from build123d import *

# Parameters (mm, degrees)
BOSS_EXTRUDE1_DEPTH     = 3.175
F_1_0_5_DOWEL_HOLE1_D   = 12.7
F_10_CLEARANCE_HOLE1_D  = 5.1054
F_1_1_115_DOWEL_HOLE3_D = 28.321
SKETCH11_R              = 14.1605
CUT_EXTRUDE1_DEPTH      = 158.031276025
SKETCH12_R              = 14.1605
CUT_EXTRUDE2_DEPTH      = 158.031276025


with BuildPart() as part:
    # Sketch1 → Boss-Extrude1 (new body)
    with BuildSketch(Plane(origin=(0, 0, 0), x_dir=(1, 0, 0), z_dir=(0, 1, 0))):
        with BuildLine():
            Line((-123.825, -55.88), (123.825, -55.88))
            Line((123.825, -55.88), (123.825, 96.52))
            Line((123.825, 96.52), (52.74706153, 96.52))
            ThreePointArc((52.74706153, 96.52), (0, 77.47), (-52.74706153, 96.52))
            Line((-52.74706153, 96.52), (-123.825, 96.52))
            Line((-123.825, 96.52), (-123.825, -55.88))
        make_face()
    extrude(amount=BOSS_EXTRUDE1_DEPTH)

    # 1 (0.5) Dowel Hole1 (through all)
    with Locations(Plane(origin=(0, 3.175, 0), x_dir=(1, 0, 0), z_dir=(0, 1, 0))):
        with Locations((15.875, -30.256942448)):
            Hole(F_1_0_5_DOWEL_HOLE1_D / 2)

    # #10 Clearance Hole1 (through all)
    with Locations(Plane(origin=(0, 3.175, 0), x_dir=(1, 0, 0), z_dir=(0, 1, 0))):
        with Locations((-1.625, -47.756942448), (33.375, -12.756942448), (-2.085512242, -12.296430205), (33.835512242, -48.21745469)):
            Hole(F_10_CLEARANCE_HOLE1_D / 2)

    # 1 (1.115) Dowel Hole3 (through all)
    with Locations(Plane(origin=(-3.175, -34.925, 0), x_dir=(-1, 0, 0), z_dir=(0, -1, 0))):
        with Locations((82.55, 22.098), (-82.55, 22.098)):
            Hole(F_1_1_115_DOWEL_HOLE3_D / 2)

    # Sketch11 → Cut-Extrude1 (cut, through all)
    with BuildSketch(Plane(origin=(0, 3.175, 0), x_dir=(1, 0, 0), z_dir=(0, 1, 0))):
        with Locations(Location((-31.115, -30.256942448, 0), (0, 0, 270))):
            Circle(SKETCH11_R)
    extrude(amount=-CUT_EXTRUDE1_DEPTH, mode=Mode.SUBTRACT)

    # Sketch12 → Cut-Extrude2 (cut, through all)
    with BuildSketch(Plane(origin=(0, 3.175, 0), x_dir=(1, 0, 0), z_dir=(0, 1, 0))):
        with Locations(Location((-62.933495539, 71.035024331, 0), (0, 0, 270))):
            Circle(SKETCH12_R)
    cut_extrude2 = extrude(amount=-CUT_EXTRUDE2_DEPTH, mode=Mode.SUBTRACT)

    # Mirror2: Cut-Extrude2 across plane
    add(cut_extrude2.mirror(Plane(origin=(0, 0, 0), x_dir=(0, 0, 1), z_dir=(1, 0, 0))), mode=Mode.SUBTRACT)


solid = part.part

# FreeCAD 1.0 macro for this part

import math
import FreeCAD as App
import Part
import Sketcher
from FreeCAD import Vector
Q = App.Units.Quantity

doc = App.newDocument("Part")
params = doc.addObject("Spreadsheet::Sheet", "Params")
for row, (alias, value) in enumerate([
    ("sketch1_height", "6 in"),
    ("sketch1_radius", "3.25 in"),
    ("sketch1_width", "9.75 in"),
    ("pad1_length", "0.125 in"),
    ("sketch2_diameter", "0.5 in"),
    ("hole_diameter", "0.5 in"),
    ("sketch3_diameter", "0.201 in"),
    ("hole2_diameter", "0.201 in"),
    ("sketch4_diameter", "1.115 in"),
    ("hole3_diameter", "1.115 in"),
    ("sketch5_diameter", "1.115 in"),
    ("sketch6_diameter", "1.115 in"),
], start=1):
    params.set(f"A{row}", alias)
    params.set(f"B{row}", "=" + value)
    params.setAlias(f"B{row}", alias)

body = doc.addObject("PartDesign::Body", "Body")

# Sketch on XZ plane
sketch1 = body.newObject("Sketcher::SketchObject", "Sketch")
sketch1.AttachmentSupport = (doc.getObject("XZ_Plane"), [""])
sketch1.MapMode = "FlatFace"
sketch1.addGeometry(Part.LineSegment(Vector(-123.825, 55.88, 0), Vector(123.825, 55.88, 0)), False)
sketch1.addGeometry(Part.LineSegment(Vector(123.825, 55.88, 0), Vector(123.825, -96.52, 0)), False)
sketch1.addGeometry(Part.LineSegment(Vector(123.825, -96.52, 0), Vector(52.747062, -96.52, 0)), False)
sketch1.addGeometry(Part.ArcOfCircle(Part.Circle(Vector(0, -160.02, 0), Vector(0, 0, 1), 82.55), math.radians(50.284863), math.radians(129.715137)), False)
sketch1.addGeometry(Part.LineSegment(Vector(-52.747062, -96.52, 0), Vector(-123.825, -96.52, 0)), False)
sketch1.addGeometry(Part.LineSegment(Vector(-123.825, -96.52, 0), Vector(-123.825, 55.88, 0)), False)
sketch1.addConstraint(Sketcher.Constraint("Coincident", 0, 2, 1, 1))
sketch1.addConstraint(Sketcher.Constraint("Coincident", 1, 2, 2, 1))
sketch1.addConstraint(Sketcher.Constraint("Coincident", 2, 2, 3, 1))
sketch1.addConstraint(Sketcher.Constraint("Coincident", 3, 2, 4, 1))
sketch1.addConstraint(Sketcher.Constraint("Coincident", 4, 2, 5, 1))
sketch1.addConstraint(Sketcher.Constraint("Coincident", 5, 2, 0, 1))
sketch1.addConstraint(Sketcher.Constraint("Horizontal", 0))
sketch1.addConstraint(Sketcher.Constraint("Vertical", 1))
sketch1.addConstraint(Sketcher.Constraint("Horizontal", 2))
sketch1.addConstraint(Sketcher.Constraint("Horizontal", 4))
sketch1.addConstraint(Sketcher.Constraint("Vertical", 5))
sketch1.addConstraint(Sketcher.Constraint("Symmetric", 2, 2, 3, 2, -2))
sketch1.addConstraint(Sketcher.Constraint("Equal", 2, 4))
sketch1.addConstraint(Sketcher.Constraint("DistanceY", 1, 2, 1, 1, Q("6 in")))
sketch1.addConstraint(Sketcher.Constraint("Radius", 3, Q("3.25 in")))
sketch1.addConstraint(Sketcher.Constraint("DistanceX", 0, 1, 0, 2, Q("9.75 in")))
sketch1.addConstraint(Sketcher.Constraint("DistanceY", 3, 3, -1, 1, Q("6.3 in")))
sketch1.addConstraint(Sketcher.Constraint("DistanceY", -1, 1, 0, 2, Q("2.2 in")))
sketch1.setExpression("Constraints[13]", "Params.sketch1_height")
sketch1.setExpression("Constraints[14]", "Params.sketch1_radius")
sketch1.setExpression("Constraints[15]", "Params.sketch1_width")
pad1 = body.newObject("PartDesign::Pad", "Pad")
pad1.Profile = sketch1
pad1.setExpression("Length", "Params.pad1_length")
pad1.Reversed = True

# Sketch on XZ plane
sketch2 = body.newObject("Sketcher::SketchObject", "Sketch001")
sketch2.AttachmentSupport = (doc.getObject("XZ_Plane"), [""])
sketch2.MapMode = "FlatFace"
sketch2.AttachmentOffset = App.Placement(Vector(0, 0, -0.125 * 25.4), App.Rotation())
sketch2.addGeometry(Part.Circle(Vector(15.875, 30.256942, 0), Vector(0, 0, 1), 6.35), False)
sketch2.addConstraint(Sketcher.Constraint("Diameter", 0, Q("0.5 in")))
sketch2.addConstraint(Sketcher.Constraint("DistanceX", -1, 1, 0, 3, Q("0.625 in")))
sketch2.addConstraint(Sketcher.Constraint("DistanceY", -1, 1, 0, 3, 30.256942))
sketch2.setExpression("Constraints[0]", "Params.sketch2_diameter")
doc.recompute()
hole = body.newObject("PartDesign::Hole", "Hole")
hole.Profile = sketch2
hole.ThreadType = "None"
hole.setExpression("Diameter", "Params.hole_diameter")
hole.DepthType = "ThroughAll"
hole.Reversed = True

# Sketch on XZ plane
sketch3 = body.newObject("Sketcher::SketchObject", "Sketch002")
sketch3.AttachmentSupport = (doc.getObject("XZ_Plane"), [""])
sketch3.MapMode = "FlatFace"
sketch3.AttachmentOffset = App.Placement(Vector(0, 0, -0.125 * 25.4), App.Rotation())
sketch3.addGeometry(Part.Circle(Vector(-1.625, 47.756942, 0), Vector(0, 0, 1), 2.5527), False)
sketch3.addGeometry(Part.Circle(Vector(33.375, 12.756942, 0), Vector(0, 0, 1), 2.5527), False)
sketch3.addGeometry(Part.Circle(Vector(-2.085512, 12.29643, 0), Vector(0, 0, 1), 2.5527), False)
sketch3.addGeometry(Part.Circle(Vector(33.835512, 48.217455, 0), Vector(0, 0, 1), 2.5527), False)
sketch3.addConstraint(Sketcher.Constraint("Equal", 0, 1))
sketch3.addConstraint(Sketcher.Constraint("Equal", 1, 2))
sketch3.addConstraint(Sketcher.Constraint("Equal", 2, 3))
sketch3.addConstraint(Sketcher.Constraint("Diameter", 0, Q("0.201 in")))
sketch3.addConstraint(Sketcher.Constraint("DistanceX", 0, 3, -1, 1, 1.625))
sketch3.addConstraint(Sketcher.Constraint("DistanceX", -1, 1, 1, 3, 33.375))
sketch3.addConstraint(Sketcher.Constraint("DistanceY", 1, 3, 0, 3, 35.0))
sketch3.addConstraint(Sketcher.Constraint("DistanceY", -1, 1, 2, 3, 12.29643))
sketch3.addConstraint(Sketcher.Constraint("DistanceY", -1, 1, 0, 3, 47.756942))
sketch3.addConstraint(Sketcher.Constraint("DistanceX", 2, 3, -1, 1, 2.085512))
sketch3.addConstraint(Sketcher.Constraint("DistanceX", -1, 1, 3, 3, 33.835512))
sketch3.addConstraint(Sketcher.Constraint("DistanceY", -1, 1, 3, 3, 48.217455))
sketch3.setExpression("Constraints[3]", "Params.sketch3_diameter")
doc.recompute()
hole2 = body.newObject("PartDesign::Hole", "Hole001")
hole2.Profile = sketch3
hole2.ThreadType = "None"
hole2.setExpression("Diameter", "Params.hole2_diameter")
hole2.DepthType = "ThroughAll"
hole2.Reversed = True

# Sketch on XZ plane
sketch4 = body.newObject("Sketcher::SketchObject", "Sketch003")
sketch4.AttachmentSupport = (doc.getObject("XZ_Plane"), [""])
sketch4.MapMode = "FlatFace"
sketch4.AttachmentOffset = App.Placement(Vector(0, 0, 1.375 * 25.4), App.Rotation())
sketch4.addGeometry(Part.Circle(Vector(-85.725, -22.098, 0), Vector(0, 0, 1), 14.1605), False)
sketch4.addGeometry(Part.Circle(Vector(79.375, -22.098, 0), Vector(0, 0, 1), 14.1605), False)
sketch4.addConstraint(Sketcher.Constraint("Equal", 0, 1))
sketch4.addConstraint(Sketcher.Constraint("Horizontal", 0, 3, 1, 3))
sketch4.addConstraint(Sketcher.Constraint("Diameter", 0, Q("1.115 in")))
sketch4.addConstraint(Sketcher.Constraint("DistanceX", 0, 3, 1, 3, Q("6.5 in")))
sketch4.addConstraint(Sketcher.Constraint("DistanceY", 0, 3, -1, 1, Q("0.87 in")))
sketch4.addConstraint(Sketcher.Constraint("DistanceX", 0, 3, -1, 1, Q("3.375 in")))
sketch4.setExpression("Constraints[2]", "Params.sketch4_diameter")
doc.recompute()
hole3 = body.newObject("PartDesign::Hole", "Hole002")
hole3.Profile = sketch4
hole3.ThreadType = "None"
hole3.setExpression("Diameter", "Params.hole3_diameter")
hole3.DepthType = "ThroughAll"

# Sketch on XZ plane
sketch5 = body.newObject("Sketcher::SketchObject", "Sketch004")
sketch5.AttachmentSupport = (doc.getObject("XZ_Plane"), [""])
sketch5.MapMode = "FlatFace"
sketch5.AttachmentOffset = App.Placement(Vector(0, 0, -0.125 * 25.4), App.Rotation())
sketch5.addGeometry(Part.Circle(Vector(-31.115, 30.256942, 0), Vector(0, 0, 1), 14.1605), False)
sketch5.addConstraint(Sketcher.Constraint("Diameter", 0, Q("1.115 in")))
sketch5.addConstraint(Sketcher.Constraint("DistanceX", 0, 3, -1, 1, Q("1.225 in")))
sketch5.addConstraint(Sketcher.Constraint("DistanceY", -1, 1, 0, 3, 30.256942))
sketch5.setExpression("Constraints[0]", "Params.sketch5_diameter")
pocket1 = body.newObject("PartDesign::Pocket", "Pocket")
pocket1.Profile = sketch5
pocket1.Type = "ThroughAll"
pocket1.Reversed = True

# Sketch on XZ plane
sketch6 = body.newObject("Sketcher::SketchObject", "Sketch005")
sketch6.AttachmentSupport = (doc.getObject("XZ_Plane"), [""])
sketch6.MapMode = "FlatFace"
sketch6.AttachmentOffset = App.Placement(Vector(0, 0, -0.125 * 25.4), App.Rotation())
sketch6.addGeometry(Part.Circle(Vector(-62.933496, -71.035024, 0), Vector(0, 0, 1), 14.1605), False)
sketch6.addConstraint(Sketcher.Constraint("Diameter", 0, Q("1.115 in")))
sketch6.addConstraint(Sketcher.Constraint("DistanceX", 0, 3, -1, 1, 62.933496))
sketch6.addConstraint(Sketcher.Constraint("DistanceY", 0, 3, -1, 1, 71.035024))
sketch6.setExpression("Constraints[0]", "Params.sketch6_diameter")
pocket2 = body.newObject("PartDesign::Pocket", "Pocket001")
pocket2.Profile = sketch6
pocket2.Type = "ThroughAll"
pocket2.Reversed = True
doc.recompute()

mirrored = body.newObject("PartDesign::Mirrored", "Mirrored")
mirrored.Originals = [pocket2]
mirrored.MirrorPlane = (doc.getObject("YZ_Plane"), [""])
body.Tip = mirrored

doc.recompute()
